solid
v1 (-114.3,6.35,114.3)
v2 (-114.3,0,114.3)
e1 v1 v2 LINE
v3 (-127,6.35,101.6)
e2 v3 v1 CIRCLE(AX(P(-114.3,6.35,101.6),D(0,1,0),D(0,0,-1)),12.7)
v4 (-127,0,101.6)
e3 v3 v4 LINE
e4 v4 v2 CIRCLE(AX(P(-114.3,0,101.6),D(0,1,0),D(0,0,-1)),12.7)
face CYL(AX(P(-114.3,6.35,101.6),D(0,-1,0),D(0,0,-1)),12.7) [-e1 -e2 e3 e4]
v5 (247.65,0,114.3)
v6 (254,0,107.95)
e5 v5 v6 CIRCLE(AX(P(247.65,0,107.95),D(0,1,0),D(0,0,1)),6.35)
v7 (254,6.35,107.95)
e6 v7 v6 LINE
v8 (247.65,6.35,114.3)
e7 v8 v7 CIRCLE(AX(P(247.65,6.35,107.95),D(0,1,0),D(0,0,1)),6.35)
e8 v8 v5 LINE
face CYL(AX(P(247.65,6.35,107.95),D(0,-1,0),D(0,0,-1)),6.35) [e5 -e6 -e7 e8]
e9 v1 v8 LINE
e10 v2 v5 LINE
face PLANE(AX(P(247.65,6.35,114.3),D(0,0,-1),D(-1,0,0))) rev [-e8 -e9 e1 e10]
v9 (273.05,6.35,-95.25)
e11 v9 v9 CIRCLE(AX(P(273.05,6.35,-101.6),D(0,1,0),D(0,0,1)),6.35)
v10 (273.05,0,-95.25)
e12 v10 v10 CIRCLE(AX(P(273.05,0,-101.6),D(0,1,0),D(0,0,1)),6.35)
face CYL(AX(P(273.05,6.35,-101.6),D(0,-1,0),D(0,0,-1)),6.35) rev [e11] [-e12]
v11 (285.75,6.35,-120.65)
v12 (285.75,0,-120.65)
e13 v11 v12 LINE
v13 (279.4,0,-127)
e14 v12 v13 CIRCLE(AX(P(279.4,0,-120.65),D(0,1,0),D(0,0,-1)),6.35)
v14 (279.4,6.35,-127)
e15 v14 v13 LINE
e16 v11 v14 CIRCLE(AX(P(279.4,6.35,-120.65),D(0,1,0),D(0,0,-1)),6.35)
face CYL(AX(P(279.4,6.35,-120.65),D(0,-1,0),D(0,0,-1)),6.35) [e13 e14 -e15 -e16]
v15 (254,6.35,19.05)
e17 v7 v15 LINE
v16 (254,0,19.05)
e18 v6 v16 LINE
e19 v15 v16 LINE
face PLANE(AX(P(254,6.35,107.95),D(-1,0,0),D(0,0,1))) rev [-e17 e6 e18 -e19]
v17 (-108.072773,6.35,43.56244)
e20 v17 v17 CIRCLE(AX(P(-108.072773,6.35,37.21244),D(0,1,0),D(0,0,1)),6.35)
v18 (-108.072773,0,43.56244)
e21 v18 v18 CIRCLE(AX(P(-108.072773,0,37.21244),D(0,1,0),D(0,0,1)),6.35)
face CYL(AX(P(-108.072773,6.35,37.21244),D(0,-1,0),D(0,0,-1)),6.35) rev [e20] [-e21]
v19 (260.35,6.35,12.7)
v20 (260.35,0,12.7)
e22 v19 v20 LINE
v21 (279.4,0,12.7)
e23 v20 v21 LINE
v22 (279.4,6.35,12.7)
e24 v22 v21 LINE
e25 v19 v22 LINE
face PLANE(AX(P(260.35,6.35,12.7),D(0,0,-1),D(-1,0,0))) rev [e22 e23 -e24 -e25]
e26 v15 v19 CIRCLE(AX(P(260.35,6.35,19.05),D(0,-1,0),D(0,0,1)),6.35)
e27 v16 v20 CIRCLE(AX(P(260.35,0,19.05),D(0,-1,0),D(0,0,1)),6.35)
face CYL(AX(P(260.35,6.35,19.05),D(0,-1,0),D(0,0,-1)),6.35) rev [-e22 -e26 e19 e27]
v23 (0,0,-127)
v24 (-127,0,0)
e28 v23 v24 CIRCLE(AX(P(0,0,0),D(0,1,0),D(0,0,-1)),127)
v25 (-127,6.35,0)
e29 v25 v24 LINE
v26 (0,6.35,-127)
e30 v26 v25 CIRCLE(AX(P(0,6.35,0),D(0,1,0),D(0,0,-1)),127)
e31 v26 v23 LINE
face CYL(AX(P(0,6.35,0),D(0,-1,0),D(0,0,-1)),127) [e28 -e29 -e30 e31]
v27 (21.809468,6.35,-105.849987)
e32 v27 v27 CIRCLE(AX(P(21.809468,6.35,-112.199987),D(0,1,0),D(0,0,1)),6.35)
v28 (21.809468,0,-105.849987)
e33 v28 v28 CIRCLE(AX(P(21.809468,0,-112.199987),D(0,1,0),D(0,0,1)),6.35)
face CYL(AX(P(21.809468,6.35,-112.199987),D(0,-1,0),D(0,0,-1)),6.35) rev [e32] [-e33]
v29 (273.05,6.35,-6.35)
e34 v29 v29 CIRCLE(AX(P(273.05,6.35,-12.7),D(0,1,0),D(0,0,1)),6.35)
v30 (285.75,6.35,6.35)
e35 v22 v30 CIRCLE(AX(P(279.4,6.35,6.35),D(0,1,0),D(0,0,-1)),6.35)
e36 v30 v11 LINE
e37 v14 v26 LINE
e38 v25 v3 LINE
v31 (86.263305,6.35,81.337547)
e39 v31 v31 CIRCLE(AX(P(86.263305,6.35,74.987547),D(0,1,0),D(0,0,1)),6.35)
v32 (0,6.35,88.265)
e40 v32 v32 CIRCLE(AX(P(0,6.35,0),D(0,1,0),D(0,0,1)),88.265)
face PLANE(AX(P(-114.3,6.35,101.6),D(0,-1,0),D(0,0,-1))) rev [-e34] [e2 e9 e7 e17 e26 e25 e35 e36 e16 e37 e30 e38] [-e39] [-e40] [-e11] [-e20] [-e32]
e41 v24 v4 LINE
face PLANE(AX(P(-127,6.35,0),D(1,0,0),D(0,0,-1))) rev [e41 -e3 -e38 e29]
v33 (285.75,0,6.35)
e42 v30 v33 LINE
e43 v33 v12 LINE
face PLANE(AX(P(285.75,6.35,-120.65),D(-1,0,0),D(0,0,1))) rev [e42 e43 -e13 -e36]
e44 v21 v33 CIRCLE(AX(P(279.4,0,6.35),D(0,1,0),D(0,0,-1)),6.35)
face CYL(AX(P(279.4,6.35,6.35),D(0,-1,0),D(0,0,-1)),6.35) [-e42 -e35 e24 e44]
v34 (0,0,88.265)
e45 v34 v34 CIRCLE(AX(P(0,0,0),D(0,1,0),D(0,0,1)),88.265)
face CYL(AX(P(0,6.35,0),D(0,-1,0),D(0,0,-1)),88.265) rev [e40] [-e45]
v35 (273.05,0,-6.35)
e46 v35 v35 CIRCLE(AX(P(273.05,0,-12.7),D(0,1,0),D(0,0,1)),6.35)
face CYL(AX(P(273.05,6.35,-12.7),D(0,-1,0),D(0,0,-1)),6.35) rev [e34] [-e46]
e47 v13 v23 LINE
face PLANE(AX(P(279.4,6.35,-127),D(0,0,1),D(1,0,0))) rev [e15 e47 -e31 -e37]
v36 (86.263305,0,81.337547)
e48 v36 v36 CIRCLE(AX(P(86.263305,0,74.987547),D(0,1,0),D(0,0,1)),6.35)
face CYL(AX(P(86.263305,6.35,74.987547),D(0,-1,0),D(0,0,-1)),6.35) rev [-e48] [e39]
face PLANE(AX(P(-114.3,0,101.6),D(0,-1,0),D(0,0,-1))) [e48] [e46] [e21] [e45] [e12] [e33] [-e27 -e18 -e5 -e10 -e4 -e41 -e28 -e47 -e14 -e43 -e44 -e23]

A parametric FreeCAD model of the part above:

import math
import FreeCAD as App
import Part
import Sketcher
from FreeCAD import Vector
Q = App.Units.Quantity

doc = App.newDocument("Part")
body = doc.addObject("PartDesign::Body", "Body")

# Sketch on XZ plane
sketch1 = doc.addObject("Sketcher::SketchObject", "Sketch")
body.addObject(sketch1)
sketch1.AttachmentSupport = (doc.XZ_Plane, [""])
sketch1.MapMode = "FlatFace"
sketch1.addGeometry(Part.LineSegment(Vector(279, -127, 0), Vector(0, -127, 0)), False)
sketch1.addGeometry(Part.ArcOfCircle(Part.Circle(Vector(0, 0, 0), Vector(0, 0, 1), 127), math.radians(180), math.radians(270)), False)
sketch1.addGeometry(Part.LineSegment(Vector(-127, 0, 0), Vector(-127, 102, 0)), False)
sketch1.addGeometry(Part.ArcOfCircle(Part.Circle(Vector(-114, 102, 0), Vector(0, 0, 1), 13), math.radians(90), math.radians(180)), False)
sketch1.addGeometry(Part.LineSegment(Vector(-114, 114, 0), Vector(248, 114, 0)), False)
sketch1.addGeometry(Part.ArcOfCircle(Part.Circle(Vector(248, 108, 0), Vector(0, 0, 1), 6), math.radians(0), math.radians(90)), False)
sketch1.addGeometry(Part.LineSegment(Vector(254, 108, 0), Vector(254, 19, 0)), False)
sketch1.addGeometry(Part.ArcOfCircle(Part.Circle(Vector(260, 19, 0), Vector(0, 0, 1), 6), math.radians(180), math.radians(270)), False)
sketch1.addGeometry(Part.LineSegment(Vector(260, 13, 0), Vector(279, 13, 0)), False)
sketch1.addGeometry(Part.ArcOfCircle(Part.Circle(Vector(279, 6, 0), Vector(0, 0, 1), 6), math.radians(0), math.radians(90)), False)
sketch1.addGeometry(Part.LineSegment(Vector(286, 6, 0), Vector(286, -121, 0)), False)
sketch1.addGeometry(Part.ArcOfCircle(Part.Circle(Vector(279, -121, 0), Vector(0, 0, 1), 6), math.radians(-90), math.radians(0)), False)
sketch1.addGeometry(Part.Circle(Vector(-108, 37, 0), Vector(0, 0, 1), 6), False)
sketch1.addGeometry(Part.Circle(Vector(0, 0, 0), Vector(0, 0, 1), 88), False)
sketch1.addGeometry(Part.Circle(Vector(86, 75, 0), Vector(0, 0, 1), 6), False)
sketch1.addGeometry(Part.Circle(Vector(273, -13, 0), Vector(0, 0, 1), 6), False)
sketch1.addGeometry(Part.Circle(Vector(22, -112, 0), Vector(0, 0, 1), 6), False)
sketch1.addGeometry(Part.Circle(Vector(273, -102, 0), Vector(0, 0, 1), 6), False)
sketch1.addConstraint(Sketcher.Constraint("Tangent", 0, 2, 1, 2))
sketch1.addConstraint(Sketcher.Constraint("Tangent", 1, 1, 2, 1))
sketch1.addConstraint(Sketcher.Constraint("Tangent", 2, 2, 3, 2))
sketch1.addConstraint(Sketcher.Constraint("Tangent", 3, 1, 4, 1))
sketch1.addConstraint(Sketcher.Constraint("Tangent", 4, 2, 5, 2))
sketch1.addConstraint(Sketcher.Constraint("Tangent", 5, 1, 6, 1))
sketch1.addConstraint(Sketcher.Constraint("Tangent", 6, 2, 7, 1))
sketch1.addConstraint(Sketcher.Constraint("Tangent", 7, 2, 8, 1))
sketch1.addConstraint(Sketcher.Constraint("Tangent", 8, 2, 9, 2))
sketch1.addConstraint(Sketcher.Constraint("Tangent", 9, 1, 10, 1))
sketch1.addConstraint(Sketcher.Constraint("Tangent", 10, 2, 11, 2))
sketch1.addConstraint(Sketcher.Constraint("Tangent", 11, 1, 0, 1))
sketch1.addConstraint(Sketcher.Constraint("Horizontal", 0))
sketch1.addConstraint(Sketcher.Constraint("Vertical", 2))
sketch1.addConstraint(Sketcher.Constraint("Horizontal", 4))
sketch1.addConstraint(Sketcher.Constraint("Vertical", 6))
sketch1.addConstraint(Sketcher.Constraint("Horizontal", 8))
sketch1.addConstraint(Sketcher.Constraint("Vertical", 10))
sketch1.addConstraint(Sketcher.Constraint("Coincident", 1, 3, -1, 1))
sketch1.addConstraint(Sketcher.Constraint("Coincident", 13, 3, -1, 1))
sketch1.addConstraint(Sketcher.Constraint("Equal", 5, 7))
sketch1.addConstraint(Sketcher.Constraint("Equal", 7, 9))
sketch1.addConstraint(Sketcher.Constraint("Equal", 9, 11))
sketch1.addConstraint(Sketcher.Constraint("Equal", 11, 12))
sketch1.addConstraint(Sketcher.Constraint("Equal", 12, 14))
sketch1.addConstraint(Sketcher.Constraint("Equal", 14, 15))
sketch1.addConstraint(Sketcher.Constraint("Equal", 15, 16))
sketch1.addConstraint(Sketcher.Constraint("Equal", 16, 17))
sketch1.addConstraint(Sketcher.Constraint("Vertical", 15, 3, 17, 3))
sketch1.addConstraint(Sketcher.Constraint("Radius", 1, Q("5 in")))
sketch1.addConstraint(Sketcher.Constraint("Diameter", 12, Q("0.5 in")))
sketch1.addConstraint(Sketcher.Constraint("Radius", 3, Q("0.5 in")))
sketch1.addConstraint(Sketcher.Constraint("Diameter", 13, Q("6.95 in")))
sketch1.addConstraint(Sketcher.Constraint("DistanceX", 0, 2, 0, 1, Q("11 in")))
sketch1.addConstraint(Sketcher.Constraint("DistanceY", 2, 1, 2, 2, Q("4 in")))
sketch1.addConstraint(Sketcher.Constraint("DistanceY", 10, 2, 10, 1, Q("5 in")))
sketch1.addConstraint(Sketcher.Constraint("DistanceY", 17, 3, -1, 1, Q("4 in")))
sketch1.addConstraint(Sketcher.Constraint("DistanceX", -1, 1, 5, 1, Q("10 in")))
sketch1.addConstraint(Sketcher.Constraint("DistanceX", 5, 3, 15, 3, Q("1 in")))
sketch1.addConstraint(Sketcher.Constraint("DistanceY", 15, 3, 4, 2, Q("5 in")))
sketch1.addConstraint(Sketcher.Constraint("DistanceY", -1, 1, 12, 3, Q("37.21244 mm")))
sketch1.addConstraint(Sketcher.Constraint("DistanceX", -1, 1, 16, 3, Q("21.809468 mm")))
sketch1.addConstraint(Sketcher.Constraint("DistanceX", 12, 3, 14, 3, Q("194.336078 mm")))
sketch1.addConstraint(Sketcher.Constraint("DistanceX", 12, 3, 16, 3, Q("129.882241 mm")))
sketch1.addConstraint(Sketcher.Constraint("DistanceY", -1, 1, 14, 3, Q("74.987547 mm")))
sketch1.addConstraint(Sketcher.Constraint("DistanceY", 16, 3, -1, 1, Q("112.199987 mm")))
pad1 = doc.addObject("PartDesign::Pad", "Pad")
body.addObject(pad1)
pad1.Profile = sketch1
pad1.Length = Q("0.25 in")
pad1.Reversed = True

doc.recompute()
